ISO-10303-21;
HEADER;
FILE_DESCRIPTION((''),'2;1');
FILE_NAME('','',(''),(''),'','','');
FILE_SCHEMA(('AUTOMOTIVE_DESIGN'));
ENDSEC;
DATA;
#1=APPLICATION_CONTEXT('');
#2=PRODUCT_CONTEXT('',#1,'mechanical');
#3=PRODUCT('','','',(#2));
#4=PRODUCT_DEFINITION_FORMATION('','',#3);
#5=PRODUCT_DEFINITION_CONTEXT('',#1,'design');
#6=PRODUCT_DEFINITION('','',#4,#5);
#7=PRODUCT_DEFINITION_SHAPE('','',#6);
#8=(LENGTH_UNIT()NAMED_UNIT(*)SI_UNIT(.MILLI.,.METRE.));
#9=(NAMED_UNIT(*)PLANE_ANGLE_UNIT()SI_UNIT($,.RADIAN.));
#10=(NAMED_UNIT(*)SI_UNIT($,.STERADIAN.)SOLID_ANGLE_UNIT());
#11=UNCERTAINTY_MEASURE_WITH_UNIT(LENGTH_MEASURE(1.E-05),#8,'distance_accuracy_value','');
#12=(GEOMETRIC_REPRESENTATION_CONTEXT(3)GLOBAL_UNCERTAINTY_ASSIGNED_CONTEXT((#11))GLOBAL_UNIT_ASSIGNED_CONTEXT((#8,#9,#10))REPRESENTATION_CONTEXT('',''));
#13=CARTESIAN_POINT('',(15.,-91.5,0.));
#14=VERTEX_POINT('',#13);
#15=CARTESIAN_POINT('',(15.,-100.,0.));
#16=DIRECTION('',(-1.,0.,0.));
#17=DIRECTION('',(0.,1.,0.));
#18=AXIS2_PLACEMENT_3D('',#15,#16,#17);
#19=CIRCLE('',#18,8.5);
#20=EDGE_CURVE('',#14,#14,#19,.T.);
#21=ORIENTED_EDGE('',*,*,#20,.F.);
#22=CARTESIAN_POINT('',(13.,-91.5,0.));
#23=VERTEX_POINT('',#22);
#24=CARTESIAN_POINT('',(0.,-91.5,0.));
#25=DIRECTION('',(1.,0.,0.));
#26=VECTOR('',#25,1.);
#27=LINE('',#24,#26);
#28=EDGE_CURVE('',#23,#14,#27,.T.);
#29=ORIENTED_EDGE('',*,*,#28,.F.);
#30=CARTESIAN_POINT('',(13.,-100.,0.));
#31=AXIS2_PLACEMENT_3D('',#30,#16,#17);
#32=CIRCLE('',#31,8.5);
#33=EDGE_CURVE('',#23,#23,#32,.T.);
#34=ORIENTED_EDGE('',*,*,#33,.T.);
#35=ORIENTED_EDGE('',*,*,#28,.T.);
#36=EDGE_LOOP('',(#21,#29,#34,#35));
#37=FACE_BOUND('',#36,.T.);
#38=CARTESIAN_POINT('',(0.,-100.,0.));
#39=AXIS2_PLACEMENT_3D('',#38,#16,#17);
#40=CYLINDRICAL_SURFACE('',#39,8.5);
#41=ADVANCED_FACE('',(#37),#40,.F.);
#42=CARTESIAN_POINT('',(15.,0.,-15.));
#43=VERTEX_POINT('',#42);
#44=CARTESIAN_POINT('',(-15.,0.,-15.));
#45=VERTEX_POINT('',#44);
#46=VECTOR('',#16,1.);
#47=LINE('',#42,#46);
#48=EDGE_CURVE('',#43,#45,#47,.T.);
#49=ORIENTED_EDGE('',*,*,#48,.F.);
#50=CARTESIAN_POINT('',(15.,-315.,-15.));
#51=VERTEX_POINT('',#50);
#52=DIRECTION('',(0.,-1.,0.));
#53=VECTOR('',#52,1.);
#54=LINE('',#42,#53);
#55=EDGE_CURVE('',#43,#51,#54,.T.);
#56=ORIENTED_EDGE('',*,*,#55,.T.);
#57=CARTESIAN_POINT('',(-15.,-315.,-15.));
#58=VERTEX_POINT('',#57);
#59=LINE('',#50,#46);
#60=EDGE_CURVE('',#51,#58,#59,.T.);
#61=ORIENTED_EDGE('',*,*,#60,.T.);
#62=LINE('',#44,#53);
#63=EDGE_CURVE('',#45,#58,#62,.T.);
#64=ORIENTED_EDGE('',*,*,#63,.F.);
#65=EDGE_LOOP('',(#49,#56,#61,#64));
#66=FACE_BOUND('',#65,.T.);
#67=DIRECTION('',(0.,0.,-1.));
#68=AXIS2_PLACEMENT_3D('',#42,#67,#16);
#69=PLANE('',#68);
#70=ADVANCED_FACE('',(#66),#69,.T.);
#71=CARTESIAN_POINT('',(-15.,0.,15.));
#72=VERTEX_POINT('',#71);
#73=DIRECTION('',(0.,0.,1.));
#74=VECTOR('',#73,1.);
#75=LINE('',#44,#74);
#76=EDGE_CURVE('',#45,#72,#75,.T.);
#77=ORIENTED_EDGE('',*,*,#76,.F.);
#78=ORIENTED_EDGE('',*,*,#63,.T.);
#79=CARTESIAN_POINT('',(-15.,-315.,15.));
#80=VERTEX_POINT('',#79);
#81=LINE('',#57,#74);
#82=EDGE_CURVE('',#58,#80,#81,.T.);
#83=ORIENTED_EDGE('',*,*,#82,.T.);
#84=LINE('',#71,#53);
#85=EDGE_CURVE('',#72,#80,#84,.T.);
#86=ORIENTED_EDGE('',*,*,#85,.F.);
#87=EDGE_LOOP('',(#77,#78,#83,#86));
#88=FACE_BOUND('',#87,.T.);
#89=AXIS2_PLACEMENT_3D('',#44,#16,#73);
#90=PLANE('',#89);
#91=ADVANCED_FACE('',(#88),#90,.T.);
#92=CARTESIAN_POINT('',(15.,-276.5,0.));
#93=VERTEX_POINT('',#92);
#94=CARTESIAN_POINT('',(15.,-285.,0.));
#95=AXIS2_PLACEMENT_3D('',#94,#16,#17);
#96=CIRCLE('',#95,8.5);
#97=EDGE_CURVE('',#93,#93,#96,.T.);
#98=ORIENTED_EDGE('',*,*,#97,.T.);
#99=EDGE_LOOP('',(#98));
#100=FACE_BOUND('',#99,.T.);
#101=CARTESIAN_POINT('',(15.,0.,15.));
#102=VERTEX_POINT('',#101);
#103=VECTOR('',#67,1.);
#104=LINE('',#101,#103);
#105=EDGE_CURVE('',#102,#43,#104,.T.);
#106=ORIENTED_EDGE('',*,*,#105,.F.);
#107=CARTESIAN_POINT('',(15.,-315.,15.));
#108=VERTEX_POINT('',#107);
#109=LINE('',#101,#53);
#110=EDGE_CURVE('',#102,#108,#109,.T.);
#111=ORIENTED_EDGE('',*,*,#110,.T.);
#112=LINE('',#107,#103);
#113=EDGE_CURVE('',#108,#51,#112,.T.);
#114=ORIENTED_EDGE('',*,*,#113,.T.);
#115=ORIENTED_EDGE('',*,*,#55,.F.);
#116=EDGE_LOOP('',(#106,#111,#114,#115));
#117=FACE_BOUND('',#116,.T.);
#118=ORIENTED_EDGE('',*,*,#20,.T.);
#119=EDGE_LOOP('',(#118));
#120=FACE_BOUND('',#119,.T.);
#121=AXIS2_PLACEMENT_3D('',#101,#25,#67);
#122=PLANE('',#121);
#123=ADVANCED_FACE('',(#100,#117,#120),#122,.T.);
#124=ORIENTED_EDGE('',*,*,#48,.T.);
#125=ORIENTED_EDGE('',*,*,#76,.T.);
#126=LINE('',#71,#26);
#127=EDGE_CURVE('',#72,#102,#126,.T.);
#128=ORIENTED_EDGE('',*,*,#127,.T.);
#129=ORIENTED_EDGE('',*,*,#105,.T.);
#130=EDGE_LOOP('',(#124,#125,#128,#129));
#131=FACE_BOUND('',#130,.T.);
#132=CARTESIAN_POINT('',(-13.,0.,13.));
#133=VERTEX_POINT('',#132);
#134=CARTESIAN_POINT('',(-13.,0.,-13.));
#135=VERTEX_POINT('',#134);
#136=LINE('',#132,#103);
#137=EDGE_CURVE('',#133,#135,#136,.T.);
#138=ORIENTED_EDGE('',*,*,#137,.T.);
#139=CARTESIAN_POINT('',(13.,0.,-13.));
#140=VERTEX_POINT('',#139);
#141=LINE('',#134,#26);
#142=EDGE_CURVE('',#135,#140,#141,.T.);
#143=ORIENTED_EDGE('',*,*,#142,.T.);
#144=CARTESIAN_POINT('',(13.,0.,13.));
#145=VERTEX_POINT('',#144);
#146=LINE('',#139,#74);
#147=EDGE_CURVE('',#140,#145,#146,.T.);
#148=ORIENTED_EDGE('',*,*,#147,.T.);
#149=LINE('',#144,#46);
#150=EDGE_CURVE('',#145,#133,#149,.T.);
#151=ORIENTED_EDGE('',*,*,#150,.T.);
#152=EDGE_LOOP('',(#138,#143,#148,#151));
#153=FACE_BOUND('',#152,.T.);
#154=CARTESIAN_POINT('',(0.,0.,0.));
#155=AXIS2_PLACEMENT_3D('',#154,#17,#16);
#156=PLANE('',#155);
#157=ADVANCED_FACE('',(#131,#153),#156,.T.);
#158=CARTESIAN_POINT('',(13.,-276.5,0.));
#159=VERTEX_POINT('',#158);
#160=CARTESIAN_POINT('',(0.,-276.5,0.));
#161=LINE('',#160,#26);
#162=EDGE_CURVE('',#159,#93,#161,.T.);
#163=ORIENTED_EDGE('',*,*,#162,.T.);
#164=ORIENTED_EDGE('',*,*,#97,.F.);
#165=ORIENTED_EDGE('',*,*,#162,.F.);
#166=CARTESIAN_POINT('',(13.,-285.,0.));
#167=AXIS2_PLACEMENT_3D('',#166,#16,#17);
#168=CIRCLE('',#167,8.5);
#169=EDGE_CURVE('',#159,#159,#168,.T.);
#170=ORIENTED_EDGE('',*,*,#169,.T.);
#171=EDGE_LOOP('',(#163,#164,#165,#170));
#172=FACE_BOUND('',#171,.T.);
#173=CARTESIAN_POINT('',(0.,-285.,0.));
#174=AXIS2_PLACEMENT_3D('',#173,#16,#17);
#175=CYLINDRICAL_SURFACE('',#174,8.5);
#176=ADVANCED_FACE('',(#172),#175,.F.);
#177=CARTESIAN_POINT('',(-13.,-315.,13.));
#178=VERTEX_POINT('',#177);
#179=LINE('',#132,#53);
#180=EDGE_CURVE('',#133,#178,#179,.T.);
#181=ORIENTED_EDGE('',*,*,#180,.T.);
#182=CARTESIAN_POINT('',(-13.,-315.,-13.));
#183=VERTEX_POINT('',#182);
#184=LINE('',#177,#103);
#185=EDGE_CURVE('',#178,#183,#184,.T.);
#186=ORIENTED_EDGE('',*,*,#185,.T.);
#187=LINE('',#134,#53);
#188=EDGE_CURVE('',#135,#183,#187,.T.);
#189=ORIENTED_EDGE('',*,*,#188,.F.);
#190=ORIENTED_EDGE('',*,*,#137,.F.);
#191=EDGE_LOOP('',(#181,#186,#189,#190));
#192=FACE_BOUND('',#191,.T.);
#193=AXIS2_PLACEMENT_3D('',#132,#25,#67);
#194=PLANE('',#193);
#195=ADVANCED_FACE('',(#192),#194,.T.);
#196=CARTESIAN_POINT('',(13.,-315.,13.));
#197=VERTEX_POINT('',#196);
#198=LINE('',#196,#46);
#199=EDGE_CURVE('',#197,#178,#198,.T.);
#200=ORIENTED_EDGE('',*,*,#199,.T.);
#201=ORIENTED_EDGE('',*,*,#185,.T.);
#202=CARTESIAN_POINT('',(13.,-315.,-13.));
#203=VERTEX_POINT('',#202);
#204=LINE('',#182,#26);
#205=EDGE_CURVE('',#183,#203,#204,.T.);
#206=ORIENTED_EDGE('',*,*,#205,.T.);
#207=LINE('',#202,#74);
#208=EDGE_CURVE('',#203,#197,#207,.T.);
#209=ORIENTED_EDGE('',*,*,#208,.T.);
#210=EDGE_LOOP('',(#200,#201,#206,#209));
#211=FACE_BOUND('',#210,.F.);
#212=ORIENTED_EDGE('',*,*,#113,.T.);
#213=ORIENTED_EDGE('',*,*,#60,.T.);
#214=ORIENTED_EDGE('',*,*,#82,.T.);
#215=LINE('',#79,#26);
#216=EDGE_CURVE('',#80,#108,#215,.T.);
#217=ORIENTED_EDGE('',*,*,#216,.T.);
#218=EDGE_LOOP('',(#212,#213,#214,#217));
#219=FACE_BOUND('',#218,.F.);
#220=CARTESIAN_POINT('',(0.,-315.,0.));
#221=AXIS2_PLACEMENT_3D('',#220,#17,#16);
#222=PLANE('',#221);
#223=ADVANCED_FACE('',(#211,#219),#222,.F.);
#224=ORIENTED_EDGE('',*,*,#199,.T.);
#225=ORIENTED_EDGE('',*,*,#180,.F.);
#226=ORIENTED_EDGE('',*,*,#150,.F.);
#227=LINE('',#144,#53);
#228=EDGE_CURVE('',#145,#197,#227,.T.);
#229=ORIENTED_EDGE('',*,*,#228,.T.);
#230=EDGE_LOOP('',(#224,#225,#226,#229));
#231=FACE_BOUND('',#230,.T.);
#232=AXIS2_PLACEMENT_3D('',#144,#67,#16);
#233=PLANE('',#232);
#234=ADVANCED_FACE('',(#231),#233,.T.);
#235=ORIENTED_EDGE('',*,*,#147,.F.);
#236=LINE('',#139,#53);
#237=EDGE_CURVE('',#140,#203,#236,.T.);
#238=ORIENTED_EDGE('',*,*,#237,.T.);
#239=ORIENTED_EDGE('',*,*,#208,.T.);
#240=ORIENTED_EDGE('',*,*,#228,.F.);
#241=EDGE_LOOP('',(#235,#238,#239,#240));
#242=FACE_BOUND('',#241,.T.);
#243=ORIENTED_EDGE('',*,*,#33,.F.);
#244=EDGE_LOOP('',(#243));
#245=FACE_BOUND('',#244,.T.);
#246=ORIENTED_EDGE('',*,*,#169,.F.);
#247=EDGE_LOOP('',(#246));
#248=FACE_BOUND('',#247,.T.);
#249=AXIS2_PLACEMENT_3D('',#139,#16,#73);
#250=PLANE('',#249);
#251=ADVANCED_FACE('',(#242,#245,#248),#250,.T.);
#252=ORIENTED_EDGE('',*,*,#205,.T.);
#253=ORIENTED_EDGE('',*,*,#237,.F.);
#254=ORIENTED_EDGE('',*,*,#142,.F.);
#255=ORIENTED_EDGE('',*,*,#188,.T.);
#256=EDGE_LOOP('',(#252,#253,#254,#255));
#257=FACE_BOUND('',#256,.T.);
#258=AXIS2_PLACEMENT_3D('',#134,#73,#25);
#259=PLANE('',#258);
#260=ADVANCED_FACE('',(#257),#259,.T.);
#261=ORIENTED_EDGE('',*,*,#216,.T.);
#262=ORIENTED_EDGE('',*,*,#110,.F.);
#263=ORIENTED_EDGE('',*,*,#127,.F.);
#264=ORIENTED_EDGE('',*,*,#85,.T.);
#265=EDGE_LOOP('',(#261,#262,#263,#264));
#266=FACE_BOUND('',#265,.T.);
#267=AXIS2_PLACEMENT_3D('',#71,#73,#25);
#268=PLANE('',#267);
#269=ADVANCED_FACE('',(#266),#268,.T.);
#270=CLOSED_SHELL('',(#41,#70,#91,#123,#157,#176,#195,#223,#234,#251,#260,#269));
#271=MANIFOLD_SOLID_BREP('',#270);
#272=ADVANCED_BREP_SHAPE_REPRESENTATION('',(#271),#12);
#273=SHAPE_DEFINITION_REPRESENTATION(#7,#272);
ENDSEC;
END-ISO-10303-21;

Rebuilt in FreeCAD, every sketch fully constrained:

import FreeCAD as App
import Part
import Sketcher

V = App.Vector
Q = App.Units.Quantity

doc = App.newDocument("Part")
body = doc.addObject("PartDesign::Body", "Body")

sketch1 = body.newObject("Sketcher::SketchObject", "Sketch")
sketch1.AttachmentSupport = (doc.getObject("XZ_Plane"), [""])
sketch1.MapMode = "FlatFace"
sketch1.addGeometry(Part.LineSegment(V(-15, -15, 0), V(-15, 15, 0)), False)
sketch1.addGeometry(Part.LineSegment(V(-15, 15, 0), V(15, 15, 0)), False)
sketch1.addGeometry(Part.LineSegment(V(15, 15, 0), V(15, -15, 0)), False)
sketch1.addGeometry(Part.LineSegment(V(15, -15, 0), V(-15, -15, 0)), False)
sketch1.addGeometry(Part.LineSegment(V(13, -13, 0), V(13, 13, 0)), False)
sketch1.addGeometry(Part.LineSegment(V(13, 13, 0), V(-13, 13, 0)), False)
sketch1.addGeometry(Part.LineSegment(V(-13, 13, 0), V(-13, -13, 0)), False)
sketch1.addGeometry(Part.LineSegment(V(-13, -13, 0), V(13, -13, 0)), False)
sketch1.addConstraint(Sketcher.Constraint("Coincident", 0, 2, 1, 1))
sketch1.addConstraint(Sketcher.Constraint("Coincident", 1, 2, 2, 1))
sketch1.addConstraint(Sketcher.Constraint("Coincident", 2, 2, 3, 1))
sketch1.addConstraint(Sketcher.Constraint("Coincident", 3, 2, 0, 1))
sketch1.addConstraint(Sketcher.Constraint("Coincident", 4, 2, 5, 1))
sketch1.addConstraint(Sketcher.Constraint("Coincident", 5, 2, 6, 1))
sketch1.addConstraint(Sketcher.Constraint("Coincident", 6, 2, 7, 1))
sketch1.addConstraint(Sketcher.Constraint("Coincident", 7, 2, 4, 1))
sketch1.addConstraint(Sketcher.Constraint("Vertical", 0))
sketch1.addConstraint(Sketcher.Constraint("Horizontal", 1))
sketch1.addConstraint(Sketcher.Constraint("Vertical", 2))
sketch1.addConstraint(Sketcher.Constraint("Horizontal", 3))
sketch1.addConstraint(Sketcher.Constraint("Vertical", 4))
sketch1.addConstraint(Sketcher.Constraint("Horizontal", 5))
sketch1.addConstraint(Sketcher.Constraint("Vertical", 6))
sketch1.addConstraint(Sketcher.Constraint("Horizontal", 7))
sketch1.addConstraint(Sketcher.Constraint("Symmetric", 0, 2, 2, 2, -1, 1))
sketch1.addConstraint(Sketcher.Constraint("Symmetric", 4, 2, 6, 2, -1, 1))
sketch1.addConstraint(Sketcher.Constraint("Equal", 3, 0))
sketch1.addConstraint(Sketcher.Constraint("Equal", 7, 4))
sketch1.addConstraint(Sketcher.Constraint("DistanceX", 1, 1, 1, 2, Q("30 mm")))
sketch1.addConstraint(Sketcher.Constraint("DistanceX", 4, 2, 1, 2, Q("2 mm")))
pad1 = body.newObject("PartDesign::Pad", "Pad")
pad1.Profile = sketch1
pad1.Length = 315

sketch2 = body.newObject("Sketcher::SketchObject", "Sketch001")
sketch2.AttachmentSupport = (doc.getObject("YZ_Plane"), [""])
sketch2.MapMode = "FlatFace"
sketch2.addGeometry(Part.Circle(V(-100, 0, 0), V(0, 0, 1), 8), False)
sketch2.addGeometry(Part.Circle(V(-285, 0, 0), V(0, 0, 1), 8), False)
sketch2.addConstraint(Sketcher.Constraint("Equal", 0, 1))
sketch2.addConstraint(Sketcher.Constraint("PointOnObject", 0, 3, -1))
sketch2.addConstraint(Sketcher.Constraint("PointOnObject", 1, 3, -1))
sketch2.addConstraint(Sketcher.Constraint("Diameter", 0, Q("17 mm")))
sketch2.addConstraint(Sketcher.Constraint("DistanceX", 0, 3, -1, 1, Q("100 mm")))
sketch2.addConstraint(Sketcher.Constraint("DistanceX", 1, 3, -1, 1, Q("285 mm")))
pocket1 = body.newObject("PartDesign::Pocket", "Pocket")
pocket1.Profile = sketch2
pocket1.Type = "ThroughAll"
pocket1.Reversed = True

doc.recompute()
